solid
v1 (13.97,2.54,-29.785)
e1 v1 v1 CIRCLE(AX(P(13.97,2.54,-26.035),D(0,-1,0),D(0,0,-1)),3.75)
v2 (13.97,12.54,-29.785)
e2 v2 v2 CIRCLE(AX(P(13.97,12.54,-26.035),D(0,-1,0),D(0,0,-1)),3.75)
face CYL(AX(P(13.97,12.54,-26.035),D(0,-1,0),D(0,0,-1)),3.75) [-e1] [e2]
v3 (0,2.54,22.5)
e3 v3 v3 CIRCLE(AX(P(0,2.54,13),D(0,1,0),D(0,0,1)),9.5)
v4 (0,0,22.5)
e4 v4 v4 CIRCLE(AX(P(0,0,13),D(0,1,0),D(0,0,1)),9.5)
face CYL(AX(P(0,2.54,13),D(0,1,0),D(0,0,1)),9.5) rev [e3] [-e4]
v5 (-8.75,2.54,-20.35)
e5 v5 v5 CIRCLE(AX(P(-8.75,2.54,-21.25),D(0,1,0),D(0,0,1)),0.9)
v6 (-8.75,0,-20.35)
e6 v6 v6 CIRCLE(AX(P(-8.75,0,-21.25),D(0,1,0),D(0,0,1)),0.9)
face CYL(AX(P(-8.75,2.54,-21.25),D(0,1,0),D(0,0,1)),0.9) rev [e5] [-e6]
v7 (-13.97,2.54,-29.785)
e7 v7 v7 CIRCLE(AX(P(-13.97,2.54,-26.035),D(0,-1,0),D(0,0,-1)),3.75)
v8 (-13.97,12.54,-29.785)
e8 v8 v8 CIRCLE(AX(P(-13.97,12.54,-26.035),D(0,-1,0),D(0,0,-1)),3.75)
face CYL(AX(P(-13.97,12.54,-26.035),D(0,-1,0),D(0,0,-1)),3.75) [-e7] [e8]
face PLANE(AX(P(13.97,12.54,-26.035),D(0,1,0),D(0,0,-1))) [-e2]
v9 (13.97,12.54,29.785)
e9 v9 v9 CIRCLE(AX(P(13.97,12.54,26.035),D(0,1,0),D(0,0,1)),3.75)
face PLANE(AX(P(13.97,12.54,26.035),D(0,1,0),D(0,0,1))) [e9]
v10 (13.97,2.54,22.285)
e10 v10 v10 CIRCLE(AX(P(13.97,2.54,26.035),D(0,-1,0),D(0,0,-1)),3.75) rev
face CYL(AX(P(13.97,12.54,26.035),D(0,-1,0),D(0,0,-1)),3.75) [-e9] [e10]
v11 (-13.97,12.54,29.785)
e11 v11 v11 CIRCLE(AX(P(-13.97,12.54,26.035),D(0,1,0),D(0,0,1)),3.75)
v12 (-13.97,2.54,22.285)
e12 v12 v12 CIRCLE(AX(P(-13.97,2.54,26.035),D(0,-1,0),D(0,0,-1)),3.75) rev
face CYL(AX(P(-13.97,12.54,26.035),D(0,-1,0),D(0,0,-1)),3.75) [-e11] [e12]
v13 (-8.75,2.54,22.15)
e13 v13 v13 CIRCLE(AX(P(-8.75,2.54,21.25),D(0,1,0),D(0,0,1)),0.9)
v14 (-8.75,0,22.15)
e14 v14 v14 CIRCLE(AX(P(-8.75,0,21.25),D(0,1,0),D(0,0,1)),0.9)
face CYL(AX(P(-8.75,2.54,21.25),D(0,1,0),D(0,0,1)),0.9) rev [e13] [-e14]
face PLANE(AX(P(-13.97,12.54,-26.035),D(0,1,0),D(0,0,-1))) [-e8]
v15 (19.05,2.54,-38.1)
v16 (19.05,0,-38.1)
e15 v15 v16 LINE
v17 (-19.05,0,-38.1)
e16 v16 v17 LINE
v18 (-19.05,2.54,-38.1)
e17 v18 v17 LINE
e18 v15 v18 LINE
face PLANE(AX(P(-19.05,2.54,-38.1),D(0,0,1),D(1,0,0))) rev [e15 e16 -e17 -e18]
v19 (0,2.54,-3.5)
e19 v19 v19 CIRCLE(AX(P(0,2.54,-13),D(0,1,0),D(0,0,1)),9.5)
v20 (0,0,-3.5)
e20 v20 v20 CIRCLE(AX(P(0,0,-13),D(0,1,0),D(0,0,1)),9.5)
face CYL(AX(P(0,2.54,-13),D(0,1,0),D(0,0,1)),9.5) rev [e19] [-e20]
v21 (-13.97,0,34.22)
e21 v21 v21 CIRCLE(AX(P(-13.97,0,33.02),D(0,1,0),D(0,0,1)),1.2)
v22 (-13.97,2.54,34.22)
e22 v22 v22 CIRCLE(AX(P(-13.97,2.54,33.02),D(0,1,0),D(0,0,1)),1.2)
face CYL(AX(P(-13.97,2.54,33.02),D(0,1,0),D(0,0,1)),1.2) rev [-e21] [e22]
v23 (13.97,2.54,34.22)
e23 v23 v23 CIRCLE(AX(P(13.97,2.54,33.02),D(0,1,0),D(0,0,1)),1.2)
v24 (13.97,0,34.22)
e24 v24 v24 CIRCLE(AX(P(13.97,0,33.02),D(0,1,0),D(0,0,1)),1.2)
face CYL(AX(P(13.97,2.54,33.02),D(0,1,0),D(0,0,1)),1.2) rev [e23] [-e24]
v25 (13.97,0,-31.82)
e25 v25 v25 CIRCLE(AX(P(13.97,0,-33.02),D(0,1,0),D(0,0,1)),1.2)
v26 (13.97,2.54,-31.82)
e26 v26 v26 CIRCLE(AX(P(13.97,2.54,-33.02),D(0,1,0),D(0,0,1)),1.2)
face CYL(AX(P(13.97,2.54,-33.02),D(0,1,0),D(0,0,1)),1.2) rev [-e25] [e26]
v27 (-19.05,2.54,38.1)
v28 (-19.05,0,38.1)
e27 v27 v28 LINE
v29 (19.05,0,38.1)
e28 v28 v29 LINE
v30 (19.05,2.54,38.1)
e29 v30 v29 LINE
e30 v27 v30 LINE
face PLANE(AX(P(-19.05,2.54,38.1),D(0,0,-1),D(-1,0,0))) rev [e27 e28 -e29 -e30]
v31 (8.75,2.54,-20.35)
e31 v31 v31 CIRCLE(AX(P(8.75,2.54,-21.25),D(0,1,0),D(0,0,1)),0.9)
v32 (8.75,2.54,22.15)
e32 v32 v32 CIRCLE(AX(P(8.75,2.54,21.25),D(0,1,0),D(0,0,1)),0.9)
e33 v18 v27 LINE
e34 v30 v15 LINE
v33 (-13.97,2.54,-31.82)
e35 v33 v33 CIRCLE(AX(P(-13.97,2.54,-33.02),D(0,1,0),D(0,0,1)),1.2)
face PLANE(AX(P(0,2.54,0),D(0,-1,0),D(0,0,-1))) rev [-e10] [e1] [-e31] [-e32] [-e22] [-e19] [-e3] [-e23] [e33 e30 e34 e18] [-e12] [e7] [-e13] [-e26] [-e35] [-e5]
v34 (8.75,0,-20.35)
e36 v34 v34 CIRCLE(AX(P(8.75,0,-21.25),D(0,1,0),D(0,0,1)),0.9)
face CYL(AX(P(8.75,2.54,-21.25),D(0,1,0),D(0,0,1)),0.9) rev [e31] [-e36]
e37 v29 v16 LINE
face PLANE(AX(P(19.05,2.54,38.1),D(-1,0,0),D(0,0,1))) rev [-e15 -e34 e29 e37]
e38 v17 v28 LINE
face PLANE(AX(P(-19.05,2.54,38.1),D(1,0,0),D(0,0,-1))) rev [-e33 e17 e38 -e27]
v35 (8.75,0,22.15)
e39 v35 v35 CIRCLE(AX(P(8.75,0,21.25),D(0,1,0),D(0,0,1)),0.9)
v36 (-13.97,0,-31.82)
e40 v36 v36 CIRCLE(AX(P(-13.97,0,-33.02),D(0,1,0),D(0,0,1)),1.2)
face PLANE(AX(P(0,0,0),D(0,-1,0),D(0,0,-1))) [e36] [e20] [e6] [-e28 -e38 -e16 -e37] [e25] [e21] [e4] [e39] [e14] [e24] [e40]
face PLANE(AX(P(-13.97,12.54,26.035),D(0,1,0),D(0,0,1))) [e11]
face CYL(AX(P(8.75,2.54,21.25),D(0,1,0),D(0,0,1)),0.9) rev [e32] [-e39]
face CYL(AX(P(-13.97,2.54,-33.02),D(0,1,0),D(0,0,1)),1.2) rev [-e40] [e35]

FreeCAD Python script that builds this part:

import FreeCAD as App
import Part
import Sketcher
from FreeCAD import Vector
Q = App.Units.Quantity


def add_polygon(sketch, points):
    """Adds a closed chain of lines whose ends are joined by coincident constraints."""
    first, n = sketch.GeometryCount, len(points)
    for a, b in zip(points, points[1:] + points[:1]):
        sketch.addGeometry(Part.LineSegment(App.Vector(*a, 0), App.Vector(*b, 0)), False)
    for i in range(n):
        sketch.addConstraint(Sketcher.Constraint("Coincident", first + i, 2, first + (i + 1) % n, 1))

doc = App.newDocument("Part")
body = doc.addObject("PartDesign::Body", "Body")

sketch1 = body.newObject("Sketcher::SketchObject", "Sketch")
sketch1.AttachmentSupport = (doc.getObject("XZ_Plane"), [""])
sketch1.MapMode = "FlatFace"
add_polygon(sketch1, [(-19, -38), (-19, 38), (19, 38), (19, -38)])
sketch1.addConstraint([
    Sketcher.Constraint("Vertical", 0),
    Sketcher.Constraint("Horizontal", 1),
    Sketcher.Constraint("Vertical", 2),
    Sketcher.Constraint("Horizontal", 3),
    Sketcher.Constraint("Symmetric", 0, 2, 2, 2, -1, 1),
    Sketcher.Constraint("DistanceX", 1, 1, 1, 2, Q("38.1 mm")),
    Sketcher.Constraint("DistanceY", 0, 1, 0, 2, Q("76.2 mm")),
])
pad1 = body.newObject("PartDesign::Pad", "Pad")
pad1.Profile = sketch1
pad1.Length = 2.54
pad1.Reversed = True

sketch2 = body.newObject("Sketcher::SketchObject", "Sketch001")
sketch2.AttachmentSupport = (doc.getObject("XZ_Plane"), [""])
sketch2.MapMode = "FlatFace"
sketch2.AttachmentOffset = App.Placement(Vector(0, 0, -2.54), App.Rotation())
sketch2.addGeometry([
    Part.Circle(Vector(0, 13, 0), Vector(0, 0, 1), 10),
    Part.Circle(Vector(0, -13, 0), Vector(0, 0, 1), 10),
], False)
sketch2.addConstraint([
    Sketcher.Constraint("Equal", 0, 1),
    Sketcher.Constraint("Symmetric", 0, 3, 1, 3, -1, 1),
    Sketcher.Constraint("PointOnObject", 0, 3, -2),
    Sketcher.Constraint("Diameter", 0, Q("19 mm")),
    Sketcher.Constraint("DistanceY", -1, 1, 0, 3, Q("13 mm")),
])
doc.recompute()
hole = body.newObject("PartDesign::Hole", "Hole")
hole.Profile = sketch2
hole.ThreadType = "None"
hole.Diameter = 19
hole.DepthType = "ThroughAll"
hole.Reversed = True

sketch3 = body.newObject("Sketcher::SketchObject", "Sketch002")
sketch3.AttachmentSupport = (doc.getObject("XZ_Plane"), [""])
sketch3.MapMode = "FlatFace"
sketch3.AttachmentOffset = App.Placement(Vector(0, 0, -2.54), App.Rotation())
sketch3.addGeometry([
    Part.Circle(Vector(8.8, -21.3, 0), Vector(0, 0, 1), 0.9),
    Part.Circle(Vector(8.8, 21.3, 0), Vector(0, 0, 1), 0.9),
    Part.Circle(Vector(-8.8, 21.3, 0), Vector(0, 0, 1), 0.9),
    Part.Circle(Vector(-8.8, -21.3, 0), Vector(0, 0, 1), 0.9),
], False)
sketch3.addConstraint([
    Sketcher.Constraint("Equal", 0, 1),
    Sketcher.Constraint("Equal", 1, 2),
    Sketcher.Constraint("Equal", 2, 3),
    Sketcher.Constraint("Symmetric", 0, 3, 2, 3, -1, 1),
    Sketcher.Constraint("Symmetric", 1, 3, 3, 3, -1, 1),
    Sketcher.Constraint("Symmetric", 1, 3, 2, 3, -2),
    Sketcher.Constraint("Diameter", 0, Q("1.8 mm")),
    Sketcher.Constraint("DistanceY", 0, 3, 1, 3, Q("42.5 mm")),
    Sketcher.Constraint("DistanceX", 2, 3, 1, 3, Q("17.5 mm")),
])
doc.recompute()
hole2 = body.newObject("PartDesign::Hole", "Hole001")
hole2.Profile = sketch3
hole2.ThreadType = "None"
hole2.Diameter = 1.8
hole2.DepthType = "ThroughAll"
hole2.Reversed = True

sketch4 = body.newObject("Sketcher::SketchObject", "Sketch003")
sketch4.AttachmentSupport = (doc.getObject("XZ_Plane"), [""])
sketch4.MapMode = "FlatFace"
sketch4.AttachmentOffset = App.Placement(Vector(0, 0, -2.54), App.Rotation())
sketch4.addGeometry([
    Part.Circle(Vector(-14, -33, 0), Vector(0, 0, 1), 1.2),
    Part.Circle(Vector(14, -33, 0), Vector(0, 0, 1), 1.2),
    Part.Circle(Vector(-14, 33, 0), Vector(0, 0, 1), 1.2),
    Part.Circle(Vector(14, 33, 0), Vector(0, 0, 1), 1.2),
], False)
sketch4.addConstraint([
    Sketcher.Constraint("Equal", 0, 1),
    Sketcher.Constraint("Equal", 1, 2),
    Sketcher.Constraint("Equal", 2, 3),
    Sketcher.Constraint("Symmetric", 1, 3, 2, 3, -1, 1),
    Sketcher.Constraint("Symmetric", 0, 3, 3, 3, -1, 1),
    Sketcher.Constraint("Symmetric", 0, 3, 1, 3, -2),
    Sketcher.Constraint("Diameter", 0, Q("2.4 mm")),
    Sketcher.Constraint("DistanceX", 0, 3, -1, 1, Q("13.97 mm")),
    Sketcher.Constraint("DistanceY", 0, 3, -1, 1, Q("33.02 mm")),
])
doc.recompute()
hole3 = body.newObject("PartDesign::Hole", "Hole002")
hole3.Profile = sketch4
hole3.ThreadType = "None"
hole3.Diameter = 2.4
hole3.DepthType = "ThroughAll"
hole3.Reversed = True

sketch5 = body.newObject("Sketcher::SketchObject", "Sketch004")
sketch5.AttachmentSupport = (doc.getObject("XZ_Plane"), [""])
sketch5.MapMode = "FlatFace"
sketch5.AttachmentOffset = App.Placement(Vector(0, 0, -2.54), App.Rotation())
sketch5.addGeometry([
    Part.Circle(Vector(-14, 26, 0), Vector(0, 0, 1), 3.7),
    Part.Circle(Vector(14, 26, 0), Vector(0, 0, 1), 3.7),
], False)
sketch5.addConstraint([
    Sketcher.Constraint("Equal", 0, 1),
    Sketcher.Constraint("Symmetric", 0, 3, 1, 3, -2),
    Sketcher.Constraint("Diameter", 0, Q("7.5 mm")),
    Sketcher.Constraint("DistanceX", 0, 3, -1, 1, Q("13.97 mm")),
    Sketcher.Constraint("DistanceY", -1, 1, 0, 3, Q("26.035 mm")),
])
pad2 = body.newObject("PartDesign::Pad", "Pad001")
pad2.Profile = sketch5
pad2.Length = 10
pad2.Reversed = True
doc.recompute()

mirrored = body.newObject("PartDesign::Mirrored", "Mirrored")
mirrored.Originals = [pad2]
mirrored.MirrorPlane = (doc.getObject("XY_Plane"), [""])
body.Tip = mirrored

doc.recompute()
